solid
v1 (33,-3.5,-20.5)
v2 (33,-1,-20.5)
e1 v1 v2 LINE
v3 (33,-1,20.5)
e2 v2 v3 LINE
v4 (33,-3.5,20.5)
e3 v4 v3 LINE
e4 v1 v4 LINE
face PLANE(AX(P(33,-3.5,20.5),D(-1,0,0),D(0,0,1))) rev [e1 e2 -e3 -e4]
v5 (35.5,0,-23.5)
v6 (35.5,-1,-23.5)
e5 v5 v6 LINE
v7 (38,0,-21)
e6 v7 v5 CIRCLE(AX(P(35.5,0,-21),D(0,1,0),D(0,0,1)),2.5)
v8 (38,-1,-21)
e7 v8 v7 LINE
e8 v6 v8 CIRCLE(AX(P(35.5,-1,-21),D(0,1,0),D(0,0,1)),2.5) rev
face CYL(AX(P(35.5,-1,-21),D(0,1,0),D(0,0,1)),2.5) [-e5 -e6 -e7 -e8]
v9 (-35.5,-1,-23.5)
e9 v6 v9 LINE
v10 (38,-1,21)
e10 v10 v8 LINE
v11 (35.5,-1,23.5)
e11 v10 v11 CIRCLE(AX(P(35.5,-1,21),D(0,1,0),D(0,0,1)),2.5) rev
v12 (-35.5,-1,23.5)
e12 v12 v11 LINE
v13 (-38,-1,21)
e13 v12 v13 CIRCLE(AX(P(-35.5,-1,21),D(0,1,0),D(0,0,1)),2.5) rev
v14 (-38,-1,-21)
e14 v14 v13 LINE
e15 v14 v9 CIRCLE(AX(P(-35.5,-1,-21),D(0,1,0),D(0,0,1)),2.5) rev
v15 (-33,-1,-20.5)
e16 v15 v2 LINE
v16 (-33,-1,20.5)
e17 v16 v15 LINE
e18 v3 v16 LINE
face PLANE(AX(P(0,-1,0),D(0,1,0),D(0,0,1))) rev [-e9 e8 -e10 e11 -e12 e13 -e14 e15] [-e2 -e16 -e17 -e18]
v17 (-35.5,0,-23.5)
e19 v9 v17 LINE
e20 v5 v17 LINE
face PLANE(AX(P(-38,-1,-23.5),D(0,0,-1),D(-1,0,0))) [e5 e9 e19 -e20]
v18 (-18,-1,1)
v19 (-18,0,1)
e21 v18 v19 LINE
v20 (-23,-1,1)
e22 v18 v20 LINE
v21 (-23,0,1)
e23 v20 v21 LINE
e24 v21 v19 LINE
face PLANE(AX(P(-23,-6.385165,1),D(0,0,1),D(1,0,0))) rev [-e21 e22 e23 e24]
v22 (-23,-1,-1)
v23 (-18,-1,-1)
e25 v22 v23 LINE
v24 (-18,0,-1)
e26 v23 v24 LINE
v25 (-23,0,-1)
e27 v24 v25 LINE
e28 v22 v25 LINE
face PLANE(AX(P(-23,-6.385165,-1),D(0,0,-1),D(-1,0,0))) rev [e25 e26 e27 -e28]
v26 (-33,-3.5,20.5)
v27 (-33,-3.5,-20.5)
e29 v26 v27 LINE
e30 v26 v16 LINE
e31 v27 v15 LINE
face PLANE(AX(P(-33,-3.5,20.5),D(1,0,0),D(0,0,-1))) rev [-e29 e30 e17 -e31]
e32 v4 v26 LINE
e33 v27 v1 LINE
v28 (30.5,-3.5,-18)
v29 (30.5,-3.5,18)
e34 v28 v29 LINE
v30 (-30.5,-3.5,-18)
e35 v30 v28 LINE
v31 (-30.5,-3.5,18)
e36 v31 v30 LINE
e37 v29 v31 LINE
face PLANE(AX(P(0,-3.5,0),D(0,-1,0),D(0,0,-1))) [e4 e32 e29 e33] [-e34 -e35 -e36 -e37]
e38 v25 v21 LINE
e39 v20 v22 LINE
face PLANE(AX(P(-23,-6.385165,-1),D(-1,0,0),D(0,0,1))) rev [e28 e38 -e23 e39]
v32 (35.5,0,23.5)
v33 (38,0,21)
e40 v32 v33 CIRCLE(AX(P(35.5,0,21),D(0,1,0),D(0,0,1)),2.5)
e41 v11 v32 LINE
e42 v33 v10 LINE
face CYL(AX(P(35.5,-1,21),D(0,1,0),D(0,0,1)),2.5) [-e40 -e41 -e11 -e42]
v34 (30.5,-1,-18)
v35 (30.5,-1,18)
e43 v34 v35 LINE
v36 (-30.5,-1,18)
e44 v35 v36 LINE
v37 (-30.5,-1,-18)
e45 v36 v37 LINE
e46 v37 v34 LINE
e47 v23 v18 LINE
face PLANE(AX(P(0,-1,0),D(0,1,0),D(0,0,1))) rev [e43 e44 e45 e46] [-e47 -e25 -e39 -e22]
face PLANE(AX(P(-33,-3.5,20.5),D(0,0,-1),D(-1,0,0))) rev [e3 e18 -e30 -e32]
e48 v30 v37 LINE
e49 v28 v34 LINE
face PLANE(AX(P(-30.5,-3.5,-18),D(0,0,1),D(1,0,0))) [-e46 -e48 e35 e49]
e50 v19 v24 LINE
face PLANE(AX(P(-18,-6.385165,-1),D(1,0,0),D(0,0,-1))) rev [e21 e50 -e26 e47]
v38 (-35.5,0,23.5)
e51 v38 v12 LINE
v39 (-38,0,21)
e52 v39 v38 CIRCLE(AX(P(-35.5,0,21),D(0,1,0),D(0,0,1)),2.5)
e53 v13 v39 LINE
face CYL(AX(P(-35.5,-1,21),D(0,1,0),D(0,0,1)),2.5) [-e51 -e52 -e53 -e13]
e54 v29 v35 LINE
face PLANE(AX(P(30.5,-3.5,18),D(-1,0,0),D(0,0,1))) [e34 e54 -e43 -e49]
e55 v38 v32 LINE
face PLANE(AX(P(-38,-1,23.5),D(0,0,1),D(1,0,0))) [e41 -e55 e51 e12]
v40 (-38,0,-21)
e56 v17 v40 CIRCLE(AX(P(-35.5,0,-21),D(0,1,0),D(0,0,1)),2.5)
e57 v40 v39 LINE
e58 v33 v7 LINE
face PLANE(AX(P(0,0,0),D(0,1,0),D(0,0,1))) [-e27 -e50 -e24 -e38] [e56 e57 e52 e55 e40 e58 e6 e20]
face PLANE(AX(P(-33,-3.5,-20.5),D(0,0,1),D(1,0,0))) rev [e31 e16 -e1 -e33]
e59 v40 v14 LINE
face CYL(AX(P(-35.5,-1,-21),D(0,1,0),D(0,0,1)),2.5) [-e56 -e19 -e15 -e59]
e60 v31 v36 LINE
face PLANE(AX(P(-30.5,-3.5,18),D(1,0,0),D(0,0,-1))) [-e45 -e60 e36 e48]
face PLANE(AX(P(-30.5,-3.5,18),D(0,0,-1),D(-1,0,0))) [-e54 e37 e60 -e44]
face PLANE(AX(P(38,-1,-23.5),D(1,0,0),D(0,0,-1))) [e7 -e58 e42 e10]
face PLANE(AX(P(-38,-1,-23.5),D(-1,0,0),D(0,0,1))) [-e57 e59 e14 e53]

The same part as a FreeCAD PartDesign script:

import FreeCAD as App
import Part
import Sketcher

V = App.Vector


def edges_at(feature, points):
    """Names of the edges that pass closest to the given points."""
    edges = feature.Shape.Edges
    near = lambda p: min(range(len(edges)), key=lambda i: edges[i].distToShape(Part.Vertex(*p))[0])
    return sorted({f"Edge{near(p) + 1}" for p in points})

doc = App.newDocument("Part")
body = doc.addObject("PartDesign::Body", "Body")

# Sketch on XZ plane
sketch1 = doc.addObject("Sketcher::SketchObject", "Sketch")
body.addObject(sketch1)
sketch1.AttachmentSupport = (doc.XZ_Plane, [""])
sketch1.MapMode = "FlatFace"
sketch1.addGeometry([
    Part.LineSegment(V(-38, -23.5, 0), V(-38, 23.5, 0)),
    Part.LineSegment(V(-38, 23.5, 0), V(38, 23.5, 0)),
    Part.LineSegment(V(38, 23.5, 0), V(38, -23.5, 0)),
    Part.LineSegment(V(38, -23.5, 0), V(-38, -23.5, 0)),
], False)
sketch1.addConstraint([
    Sketcher.Constraint("Coincident", 0, 2, 1, 1),
    Sketcher.Constraint("Coincident", 1, 2, 2, 1),
    Sketcher.Constraint("Coincident", 2, 2, 3, 1),
    Sketcher.Constraint("Coincident", 3, 2, 0, 1),
    Sketcher.Constraint("Vertical", 0),
    Sketcher.Constraint("Horizontal", 1),
    Sketcher.Constraint("Vertical", 2),
    Sketcher.Constraint("Horizontal", 3),
    Sketcher.Constraint("Symmetric", 0, 2, 2, 2, -1, 1),
    Sketcher.Constraint("DistanceX", 1, 1, 1, 2, 76.0),
    Sketcher.Constraint("DistanceY", 0, 1, 0, 2, 47.0),
])
pad1 = doc.addObject("PartDesign::Pad", "Pad")
body.addObject(pad1)
pad1.Profile = sketch1
pad1.Length = 1

# Sketch on XZ plane
sketch2 = doc.addObject("Sketcher::SketchObject", "Sketch001")
body.addObject(sketch2)
sketch2.AttachmentSupport = (doc.XZ_Plane, [""])
sketch2.MapMode = "FlatFace"
sketch2.AttachmentOffset = App.Placement(V(0, 0, 1), App.Rotation())
sketch2.addGeometry([
    Part.LineSegment(V(-33, 20.5, 0), V(-33, -20.5, 0)),  # 0
    Part.LineSegment(V(-33, -20.5, 0), V(33, -20.5, 0)),  # 1
    Part.LineSegment(V(33, -20.5, 0), V(33, 20.5, 0)),  # 2
    Part.LineSegment(V(33, 20.5, 0), V(-33, 20.5, 0)),  # 3
    Part.LineSegment(V(30.5, -18, 0), V(-30.5, -18, 0)),  # 4
    Part.LineSegment(V(-30.5, -18, 0), V(-30.5, 18, 0)),  # 5
    Part.LineSegment(V(-30.5, 18, 0), V(30.5, 18, 0)),  # 6
    Part.LineSegment(V(30.5, 18, 0), V(30.5, -18, 0)),  # 7
], False)
sketch2.addConstraint([
    Sketcher.Constraint("Coincident", 0, 2, 1, 1),
    Sketcher.Constraint("Coincident", 1, 2, 2, 1),
    Sketcher.Constraint("Coincident", 2, 2, 3, 1),
    Sketcher.Constraint("Coincident", 3, 2, 0, 1),
    Sketcher.Constraint("Coincident", 4, 2, 5, 1),
    Sketcher.Constraint("Coincident", 5, 2, 6, 1),
    Sketcher.Constraint("Coincident", 6, 2, 7, 1),
    Sketcher.Constraint("Coincident", 7, 2, 4, 1),
    Sketcher.Constraint("Vertical", 0),
    Sketcher.Constraint("Horizontal", 1),
    Sketcher.Constraint("Vertical", 2),
    Sketcher.Constraint("Horizontal", 3),
    Sketcher.Constraint("Horizontal", 4),
    Sketcher.Constraint("Vertical", 5),
    Sketcher.Constraint("Horizontal", 6),
    Sketcher.Constraint("Vertical", 7),
    Sketcher.Constraint("Symmetric", 0, 2, 2, 2, -1, 1),
    Sketcher.Constraint("Symmetric", 4, 2, 6, 2, -1, 1),
    Sketcher.Constraint("DistanceX", 1, 1, 1, 2, 66.0),
    Sketcher.Constraint("DistanceX", 4, 2, 4, 1, 61.0),
    Sketcher.Constraint("DistanceY", 0, 2, 0, 1, 41.0),
    Sketcher.Constraint("DistanceY", 5, 1, 5, 2, 36.0),
])
pad2 = doc.addObject("PartDesign::Pad", "Pad001")
body.addObject(pad2)
pad2.Profile = sketch2
pad2.Length = 2.5
doc.recompute()

fillet = doc.addObject("PartDesign::Fillet", "Fillet")
body.addObject(fillet)
fillet.Base = (pad2, edges_at(pad2, [
    (38, -0.5, 23.5),
    (-38, -0.5, 23.5),
    (-38, -0.5, -23.5),
    (38, -0.5, -23.5),
]))
fillet.Radius = 2.5

# Sketch on XZ plane
sketch3 = doc.addObject("Sketcher::SketchObject", "Sketch002")
body.addObject(sketch3)
sketch3.AttachmentSupport = (doc.XZ_Plane, [""])
sketch3.MapMode = "FlatFace"
sketch3.addGeometry([
    Part.LineSegment(V(-23, -1, 0), V(-23, 1, 0)),
    Part.LineSegment(V(-23, 1, 0), V(-18, 1, 0)),
    Part.LineSegment(V(-18, 1, 0), V(-18, -1, 0)),
    Part.LineSegment(V(-18, -1, 0), V(-23, -1, 0)),
], False)
sketch3.addConstraint([
    Sketcher.Constraint("Coincident", 0, 2, 1, 1),
    Sketcher.Constraint("Coincident", 1, 2, 2, 1),
    Sketcher.Constraint("Coincident", 2, 2, 3, 1),
    Sketcher.Constraint("Coincident", 3, 2, 0, 1),
    Sketcher.Constraint("Vertical", 0),
    Sketcher.Constraint("Horizontal", 1),
    Sketcher.Constraint("Vertical", 2),
    Sketcher.Constraint("Horizontal", 3),
    Sketcher.Constraint("DistanceX", 1, 1, 1, 2, 5.0),
    Sketcher.Constraint("DistanceY", 0, 1, 0, 2, 2.0),
    Sketcher.Constraint("DistanceX", 0, 2, -1, 1, 23.0),
    Sketcher.Constraint("DistanceY", -1, 1, 0, 2, 1.0),
])
pocket1 = doc.addObject("PartDesign::Pocket", "Pocket")
body.addObject(pocket1)
pocket1.Profile = sketch3
pocket1.Length = 1
pocket1.Reversed = True

doc.recompute()
